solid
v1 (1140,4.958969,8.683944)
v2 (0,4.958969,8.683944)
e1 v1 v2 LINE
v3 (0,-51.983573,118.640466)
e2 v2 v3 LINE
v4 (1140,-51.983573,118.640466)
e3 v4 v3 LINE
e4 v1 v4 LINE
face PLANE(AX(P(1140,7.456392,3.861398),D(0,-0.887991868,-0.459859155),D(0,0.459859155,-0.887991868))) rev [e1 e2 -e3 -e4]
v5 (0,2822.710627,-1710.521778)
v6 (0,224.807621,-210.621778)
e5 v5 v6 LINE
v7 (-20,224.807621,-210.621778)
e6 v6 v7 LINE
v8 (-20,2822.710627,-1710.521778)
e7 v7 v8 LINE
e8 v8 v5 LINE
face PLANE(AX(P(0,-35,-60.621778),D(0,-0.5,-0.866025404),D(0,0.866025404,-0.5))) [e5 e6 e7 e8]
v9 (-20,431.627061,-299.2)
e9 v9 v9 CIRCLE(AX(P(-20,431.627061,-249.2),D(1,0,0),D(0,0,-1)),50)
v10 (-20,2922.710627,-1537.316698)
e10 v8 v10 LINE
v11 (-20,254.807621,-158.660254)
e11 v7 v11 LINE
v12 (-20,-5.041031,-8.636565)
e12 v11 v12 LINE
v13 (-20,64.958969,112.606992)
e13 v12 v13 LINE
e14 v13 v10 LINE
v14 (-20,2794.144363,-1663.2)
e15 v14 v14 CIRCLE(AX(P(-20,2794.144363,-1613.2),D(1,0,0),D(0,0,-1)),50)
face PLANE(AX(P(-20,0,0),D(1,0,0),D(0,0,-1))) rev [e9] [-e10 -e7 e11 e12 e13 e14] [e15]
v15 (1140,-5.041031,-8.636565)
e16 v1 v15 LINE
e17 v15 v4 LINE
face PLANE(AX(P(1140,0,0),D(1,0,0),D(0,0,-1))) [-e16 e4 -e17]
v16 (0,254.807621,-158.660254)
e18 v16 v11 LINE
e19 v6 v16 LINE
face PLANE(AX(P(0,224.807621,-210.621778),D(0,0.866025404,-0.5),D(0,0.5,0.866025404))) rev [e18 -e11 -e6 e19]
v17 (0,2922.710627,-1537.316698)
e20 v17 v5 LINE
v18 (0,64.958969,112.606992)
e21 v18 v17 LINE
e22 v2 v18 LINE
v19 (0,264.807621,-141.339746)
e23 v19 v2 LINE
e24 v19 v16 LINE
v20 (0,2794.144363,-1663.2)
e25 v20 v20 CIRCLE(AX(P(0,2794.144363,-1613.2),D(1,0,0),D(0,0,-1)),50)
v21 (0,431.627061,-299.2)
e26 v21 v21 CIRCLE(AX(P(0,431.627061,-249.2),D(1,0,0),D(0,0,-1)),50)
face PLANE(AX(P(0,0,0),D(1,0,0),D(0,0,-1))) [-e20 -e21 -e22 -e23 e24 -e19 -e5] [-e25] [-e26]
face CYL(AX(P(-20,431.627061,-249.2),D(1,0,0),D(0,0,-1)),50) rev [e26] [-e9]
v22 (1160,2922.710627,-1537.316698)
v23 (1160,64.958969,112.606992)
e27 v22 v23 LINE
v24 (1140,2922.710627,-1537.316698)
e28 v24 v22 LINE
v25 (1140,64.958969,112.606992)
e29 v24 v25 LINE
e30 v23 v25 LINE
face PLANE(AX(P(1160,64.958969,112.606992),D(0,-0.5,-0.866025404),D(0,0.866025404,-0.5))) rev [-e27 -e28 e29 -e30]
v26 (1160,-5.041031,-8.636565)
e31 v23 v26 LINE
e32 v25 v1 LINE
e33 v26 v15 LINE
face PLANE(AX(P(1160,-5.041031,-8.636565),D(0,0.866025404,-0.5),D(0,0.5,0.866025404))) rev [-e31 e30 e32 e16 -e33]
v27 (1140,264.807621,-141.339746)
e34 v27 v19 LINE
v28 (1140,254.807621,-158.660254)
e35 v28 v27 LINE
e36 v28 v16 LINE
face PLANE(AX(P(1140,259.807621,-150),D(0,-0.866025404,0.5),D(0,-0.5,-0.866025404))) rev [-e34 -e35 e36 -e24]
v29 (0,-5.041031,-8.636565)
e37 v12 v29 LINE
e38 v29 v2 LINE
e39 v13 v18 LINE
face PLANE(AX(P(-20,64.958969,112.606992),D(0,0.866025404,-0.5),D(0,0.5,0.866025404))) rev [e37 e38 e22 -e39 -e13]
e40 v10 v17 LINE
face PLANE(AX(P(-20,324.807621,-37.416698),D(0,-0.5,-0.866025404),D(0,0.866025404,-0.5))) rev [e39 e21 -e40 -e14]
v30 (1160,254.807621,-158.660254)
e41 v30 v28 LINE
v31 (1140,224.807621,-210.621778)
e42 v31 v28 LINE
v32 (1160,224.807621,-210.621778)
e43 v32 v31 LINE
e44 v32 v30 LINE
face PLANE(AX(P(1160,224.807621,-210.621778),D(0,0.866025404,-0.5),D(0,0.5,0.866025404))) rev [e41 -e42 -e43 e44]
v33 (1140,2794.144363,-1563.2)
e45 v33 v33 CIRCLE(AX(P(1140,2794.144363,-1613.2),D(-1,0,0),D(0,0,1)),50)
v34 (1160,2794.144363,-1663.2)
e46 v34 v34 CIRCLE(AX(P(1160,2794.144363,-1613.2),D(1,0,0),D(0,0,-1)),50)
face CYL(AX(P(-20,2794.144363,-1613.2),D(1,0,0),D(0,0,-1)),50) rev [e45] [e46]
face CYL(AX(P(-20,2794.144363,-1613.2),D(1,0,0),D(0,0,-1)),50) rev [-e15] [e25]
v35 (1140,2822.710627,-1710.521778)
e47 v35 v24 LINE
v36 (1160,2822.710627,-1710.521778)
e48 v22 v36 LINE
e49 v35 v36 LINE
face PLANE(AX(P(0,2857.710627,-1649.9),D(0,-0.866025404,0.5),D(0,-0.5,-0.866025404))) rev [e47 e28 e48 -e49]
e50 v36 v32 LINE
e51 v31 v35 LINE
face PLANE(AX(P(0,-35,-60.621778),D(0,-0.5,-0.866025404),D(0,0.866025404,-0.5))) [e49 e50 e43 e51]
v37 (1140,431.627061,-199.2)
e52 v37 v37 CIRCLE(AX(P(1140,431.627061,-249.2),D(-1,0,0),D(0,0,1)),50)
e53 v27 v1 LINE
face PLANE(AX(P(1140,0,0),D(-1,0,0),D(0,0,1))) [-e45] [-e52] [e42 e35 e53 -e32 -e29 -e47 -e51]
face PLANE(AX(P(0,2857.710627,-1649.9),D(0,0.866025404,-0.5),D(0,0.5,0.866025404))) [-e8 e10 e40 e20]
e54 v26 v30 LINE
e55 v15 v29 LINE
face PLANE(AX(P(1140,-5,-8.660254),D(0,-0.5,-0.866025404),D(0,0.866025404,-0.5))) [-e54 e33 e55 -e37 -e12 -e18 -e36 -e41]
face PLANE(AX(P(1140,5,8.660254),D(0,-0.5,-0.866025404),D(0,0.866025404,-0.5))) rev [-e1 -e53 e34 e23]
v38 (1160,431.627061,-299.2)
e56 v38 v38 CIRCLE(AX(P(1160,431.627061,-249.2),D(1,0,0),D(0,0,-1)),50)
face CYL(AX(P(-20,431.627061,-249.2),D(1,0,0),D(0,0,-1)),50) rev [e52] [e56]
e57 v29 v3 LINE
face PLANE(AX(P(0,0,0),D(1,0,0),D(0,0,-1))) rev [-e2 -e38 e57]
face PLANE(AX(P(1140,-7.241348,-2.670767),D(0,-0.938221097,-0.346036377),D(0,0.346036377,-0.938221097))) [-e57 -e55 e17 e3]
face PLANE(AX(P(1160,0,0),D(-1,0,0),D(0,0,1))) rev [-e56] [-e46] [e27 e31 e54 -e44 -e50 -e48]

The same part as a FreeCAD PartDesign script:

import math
import FreeCAD as App
import Part
import Sketcher

V = App.Vector
Q = App.Units.Quantity

doc = App.newDocument("Part")
body = doc.addObject("PartDesign::Body", "Body")

sketch1 = body.newObject("Sketcher::SketchObject", "Sketch")
sketch1.AttachmentSupport = (doc.getObject("YZ_Plane"), [""])
sketch1.MapMode = "FlatFace"
sketch1.addGeometry([
    Part.LineSegment(V(255, -159, 0), V(265, -141, 0)),
    Part.LineSegment(V(265, -141, 0), V(5, 9, 0)),
    Part.LineSegment(V(5, 9, 0), V(-52, 119, 0)),
    Part.LineSegment(V(-52, 119, 0), V(-5, -9, 0)),
    Part.LineSegment(V(-5, -9, 0), V(255, -159, 0)),
], False)
sketch1.addConstraint([
    Sketcher.Constraint("Coincident", 0, 2, 1, 1),
    Sketcher.Constraint("Coincident", 1, 2, 2, 1),
    Sketcher.Constraint("Coincident", 2, 2, 3, 1),
    Sketcher.Constraint("Coincident", 3, 2, 4, 1),
    Sketcher.Constraint("Coincident", 4, 2, 0, 1),
    Sketcher.Constraint("Perpendicular", 0, 1),
    Sketcher.Constraint("Parallel", 1, 4),
    Sketcher.Constraint("Equal", 1, 4),
    Sketcher.Constraint("Angle", 0, Q("60 deg")),
    Sketcher.Constraint("Distance", 0, Q("20 mm")),
    Sketcher.Constraint("Distance", 1, Q("300.047379 mm")),
    Sketcher.Constraint("DistanceX", -1, 1, 0, 2, Q("264.807621 mm")),
    Sketcher.Constraint("DistanceX", 2, 2, 1, 2, Q("56.942541 mm")),
    Sketcher.Constraint("DistanceY", 0, 2, 2, 2, Q("259.980212 mm")),
    Sketcher.Constraint("DistanceY", 0, 2, -1, 1, Q("141.339746 mm")),
])
pad1 = body.newObject("PartDesign::Pad", "Pad")
pad1.Profile = sketch1
pad1.Length = 1140

sketch2 = body.newObject("Sketcher::SketchObject", "Sketch001")
sketch2.AttachmentSupport = (doc.getObject("YZ_Plane"), [""])
sketch2.MapMode = "FlatFace"
sketch2.AttachmentOffset = App.Placement(V(0, 0, 1140), App.Rotation())
sketch2.addGeometry([
    Part.LineSegment(V(-5, -9, 0), V(255, -159, 0)),
    Part.LineSegment(V(255, -159, 0), V(325, -37, 0)),
    Part.LineSegment(V(325, -37, 0), V(65, 113, 0)),
    Part.LineSegment(V(65, 113, 0), V(-5, -9, 0)),
], False)
sketch2.addConstraint([
    Sketcher.Constraint("Coincident", 0, 2, 1, 1),
    Sketcher.Constraint("Coincident", 1, 2, 2, 1),
    Sketcher.Constraint("Coincident", 2, 2, 3, 1),
    Sketcher.Constraint("Coincident", 3, 2, 0, 1),
    Sketcher.Constraint("Perpendicular", 0, 1),
    Sketcher.Constraint("Perpendicular", 1, 2),
    Sketcher.Constraint("Perpendicular", 2, 3),
    Sketcher.Constraint("Angle", 0, Q("-30 deg")),
    Sketcher.Constraint("Distance", 1, Q("140 mm")),
    Sketcher.Constraint("Distance", 0, Q("300.047379 mm")),
    Sketcher.Constraint("DistanceX", -1, 1, 0, 2, Q("254.807621 mm")),
    Sketcher.Constraint("DistanceY", 0, 2, -1, 1, Q("158.660254 mm")),
])
pad2 = body.newObject("PartDesign::Pad", "Pad001")
pad2.Profile = sketch2
pad2.Length = 20

sketch3 = body.newObject("Sketcher::SketchObject", "Sketch002")
sketch3.AttachmentSupport = (doc.getObject("YZ_Plane"), [""])
sketch3.MapMode = "FlatFace"
sketch3.addGeometry([
    Part.LineSegment(V(325, -37, 0), V(255, -159, 0)),
    Part.LineSegment(V(255, -159, 0), V(-5, -9, 0)),
    Part.LineSegment(V(-5, -9, 0), V(65, 113, 0)),
    Part.LineSegment(V(65, 113, 0), V(325, -37, 0)),
], False)
sketch3.addConstraint([
    Sketcher.Constraint("Coincident", 0, 2, 1, 1),
    Sketcher.Constraint("Coincident", 1, 2, 2, 1),
    Sketcher.Constraint("Coincident", 2, 2, 3, 1),
    Sketcher.Constraint("Coincident", 3, 2, 0, 1),
    Sketcher.Constraint("Perpendicular", 0, 1),
    Sketcher.Constraint("Perpendicular", 1, 2),
    Sketcher.Constraint("Perpendicular", 2, 3),
    Sketcher.Constraint("Angle", 0, Q("-120 deg")),
    Sketcher.Constraint("Distance", 0, Q("140 mm")),
    Sketcher.Constraint("Distance", 1, Q("300.047379 mm")),
    Sketcher.Constraint("DistanceX", -1, 1, 0, 2, Q("254.807621 mm")),
    Sketcher.Constraint("DistanceY", 0, 2, -1, 1, Q("158.660254 mm")),
])
pad3 = body.newObject("PartDesign::Pad", "Pad002")
pad3.Profile = sketch3
pad3.Length = 20
pad3.Reversed = True

sketch4 = body.newObject("Sketcher::SketchObject", "Sketch003")
sketch4.Placement = App.Placement(V(0, 259.807621, -150), App.Rotation(V(1, 0, 0), V(0, -0.5, -0.866025404), V(0, 0.866025404, -0.5), "ZXY"))
sketch4.addGeometry([
    Part.LineSegment(V(1140, 10, 0), V(1140, -130, 0)),
    Part.LineSegment(V(1140, -130, 0), V(1160, -130, 0)),
    Part.LineSegment(V(1160, -130, 0), V(1160, 10, 0)),
    Part.LineSegment(V(1160, 10, 0), V(1140, 10, 0)),
], False)
sketch4.addConstraint([
    Sketcher.Constraint("Coincident", 0, 2, 1, 1),
    Sketcher.Constraint("Coincident", 1, 2, 2, 1),
    Sketcher.Constraint("Coincident", 2, 2, 3, 1),
    Sketcher.Constraint("Coincident", 3, 2, 0, 1),
    Sketcher.Constraint("Vertical", 0),
    Sketcher.Constraint("Horizontal", 1),
    Sketcher.Constraint("Vertical", 2),
    Sketcher.Constraint("Horizontal", 3),
    Sketcher.Constraint("DistanceX", 1, 1, 1, 2, Q("20 mm")),
    Sketcher.Constraint("DistanceY", 0, 2, 0, 1, Q("140 mm")),
    Sketcher.Constraint("DistanceX", -1, 1, 0, 2, Q("1140 mm")),
    Sketcher.Constraint("DistanceY", 0, 2, -1, 1, Q("130 mm")),
])
pad4 = body.newObject("PartDesign::Pad", "Pad003")
pad4.Profile = sketch4
pad4.Length = 2999.8

sketch5 = body.newObject("Sketcher::SketchObject", "Sketch004")
sketch5.Placement = App.Placement(V(0, 259.807621, -150), App.Rotation(V(1, 0, 0), V(0, -0.5, -0.866025404), V(0, 0.866025404, -0.5), "ZXY"))
sketch5.addGeometry([
    Part.LineSegment(V(-20, 10, 0), V(-20, -130, 0)),
    Part.LineSegment(V(-20, -130, 0), V(0, -130, 0)),
    Part.LineSegment(V(0, -130, 0), V(0, 10, 0)),
    Part.LineSegment(V(0, 10, 0), V(-20, 10, 0)),
], False)
sketch5.addConstraint([
    Sketcher.Constraint("Coincident", 0, 2, 1, 1),
    Sketcher.Constraint("Coincident", 1, 2, 2, 1),
    Sketcher.Constraint("Coincident", 2, 2, 3, 1),
    Sketcher.Constraint("Coincident", 3, 2, 0, 1),
    Sketcher.Constraint("Vertical", 0),
    Sketcher.Constraint("Horizontal", 1),
    Sketcher.Constraint("Vertical", 2),
    Sketcher.Constraint("Horizontal", 3),
    Sketcher.Constraint("PointOnObject", 1, 2, -2),
    Sketcher.Constraint("DistanceX", 1, 1, 1, 2, Q("20 mm")),
    Sketcher.Constraint("DistanceY", 0, 2, 0, 1, Q("140 mm")),
    Sketcher.Constraint("DistanceY", 0, 2, -1, 1, Q("130 mm")),
])
pad5 = body.newObject("PartDesign::Pad", "Pad004")
pad5.Profile = sketch5
pad5.Length = 2999.8

sketch6 = body.newObject("Sketcher::SketchObject", "Sketch005")
sketch6.Placement = App.Placement(V(0, -5, -8.660254), App.Rotation(V(-1, 0, 0), V(0, 0.866025404, -0.5), V(0, -0.5, -0.866025404), "ZXY"))
sketch6.addGeometry([
    Part.LineSegment(V(-1160, 3300, 0), V(-1160, 300, 0)),
    Part.LineSegment(V(-1160, 300, 0), V(-1140, 300, 0)),
    Part.LineSegment(V(-1140, 300, 0), V(-1140, 3300, 0)),
    Part.LineSegment(V(-1140, 3300, 0), V(-1160, 3300, 0)),
], False)
sketch6.addConstraint([
    Sketcher.Constraint("Coincident", 0, 2, 1, 1),
    Sketcher.Constraint("Coincident", 1, 2, 2, 1),
    Sketcher.Constraint("Coincident", 2, 2, 3, 1),
    Sketcher.Constraint("Coincident", 3, 2, 0, 1),
    Sketcher.Constraint("Vertical", 0),
    Sketcher.Constraint("Horizontal", 1),
    Sketcher.Constraint("Vertical", 2),
    Sketcher.Constraint("Horizontal", 3),
    Sketcher.Constraint("DistanceX", 1, 1, 1, 2, Q("20 mm")),
    Sketcher.Constraint("DistanceY", 0, 2, 0, 1, Q("2999.800001 mm")),
    Sketcher.Constraint("DistanceX", 0, 2, -1, 1, Q("1160 mm")),
    Sketcher.Constraint("DistanceY", -1, 1, 0, 2, Q("300 mm")),
])
pad6 = body.newObject("PartDesign::Pad", "Pad005")
pad6.Profile = sketch6
pad6.Length = 60

sketch7 = body.newObject("Sketcher::SketchObject", "Sketch006")
sketch7.Placement = App.Placement(V(0, -5, -8.660254), App.Rotation(V(-1, 0, 0), V(0, 0.866025404, -0.5), V(0, -0.5, -0.866025404), "ZXY"))
sketch7.addGeometry([
    Part.LineSegment(V(0, 3300, 0), V(0, 300, 0)),
    Part.LineSegment(V(0, 300, 0), V(20, 300, 0)),
    Part.LineSegment(V(20, 300, 0), V(20, 3300, 0)),
    Part.LineSegment(V(20, 3300, 0), V(0, 3300, 0)),
], False)
sketch7.addConstraint([
    Sketcher.Constraint("Coincident", 0, 2, 1, 1),
    Sketcher.Constraint("Coincident", 1, 2, 2, 1),
    Sketcher.Constraint("Coincident", 2, 2, 3, 1),
    Sketcher.Constraint("Coincident", 3, 2, 0, 1),
    Sketcher.Constraint("Vertical", 0),
    Sketcher.Constraint("Horizontal", 1),
    Sketcher.Constraint("Vertical", 2),
    Sketcher.Constraint("Horizontal", 3),
    Sketcher.Constraint("PointOnObject", 0, 2, -2),
    Sketcher.Constraint("DistanceX", 1, 1, 1, 2, Q("20 mm")),
    Sketcher.Constraint("DistanceY", 0, 2, 0, 1, Q("2999.800001 mm")),
    Sketcher.Constraint("DistanceY", -1, 1, 0, 2, Q("300 mm")),
])
pad7 = body.newObject("PartDesign::Pad", "Pad006")
pad7.Profile = sketch7
pad7.Length = 60

sketch8 = body.newObject("Sketcher::SketchObject", "Sketch007")
sketch8.AttachmentSupport = (doc.getObject("YZ_Plane"), [""])
sketch8.MapMode = "FlatFace"
sketch8.AttachmentOffset = App.Placement(V(0, 0, 1160), App.Rotation())
sketch8.addGeometry([
    Part.ArcOfCircle(Part.Circle(V(432, -249, 0), V(0, 0, 1), 50), math.radians(-30), math.radians(150)),
    Part.ArcOfCircle(Part.Circle(V(432, -249, 0), V(0, 0, 1), 50), math.radians(150), math.radians(270)),
    Part.ArcOfCircle(Part.Circle(V(432, -249, 0), V(0, 0, 1), 50), math.radians(-90), math.radians(-30)),
    Part.ArcOfCircle(Part.Circle(V(2794, -1613, 0), V(0, 0, 1), 50), math.radians(-30), math.radians(150)),
    Part.ArcOfCircle(Part.Circle(V(2794, -1613, 0), V(0, 0, 1), 50), math.radians(150), math.radians(270)),
    Part.ArcOfCircle(Part.Circle(V(2794, -1613, 0), V(0, 0, 1), 50), math.radians(-90), math.radians(-30)),
], False)
sketch8.addConstraint([
    Sketcher.Constraint("Tangent", 0, 2, 1, 1),
    Sketcher.Constraint("Tangent", 1, 2, 2, 1),
    Sketcher.Constraint("Tangent", 2, 2, 0, 1),
    Sketcher.Constraint("Tangent", 3, 2, 4, 1),
    Sketcher.Constraint("Tangent", 4, 2, 5, 1),
    Sketcher.Constraint("Tangent", 5, 2, 3, 1),
    Sketcher.Constraint("Equal", 2, 3),
    Sketcher.Constraint("Vertical", 2, 3, 1, 2),
    Sketcher.Constraint("Vertical", 5, 3, 4, 2),
    Sketcher.Constraint("Radius", 0, Q("50 mm")),
    Sketcher.Constraint("DistanceY", 3, 3, 0, 3, Q("1364 mm")),
    Sketcher.Constraint("DistanceY", 2, 3, 0, 2, Q("25 mm")),
    Sketcher.Constraint("DistanceY", 2, 2, 0, 3, Q("25 mm")),
    Sketcher.Constraint("DistanceY", 5, 3, 3, 2, Q("25 mm")),
    Sketcher.Constraint("DistanceY", 5, 2, 3, 3, Q("25 mm")),
    Sketcher.Constraint("DistanceY", 0, 3, -1, 1, Q("249.2 mm")),
    Sketcher.Constraint("DistanceX", 0, 3, 3, 3, Q("2362.517302 mm")),
    Sketcher.Constraint("DistanceX", -1, 1, 0, 3, Q("431.627061 mm")),
])
pocket1 = body.newObject("PartDesign::Pocket", "Pocket")
pocket1.Profile = sketch8
pocket1.Type = "ThroughAll"

doc.recompute()
